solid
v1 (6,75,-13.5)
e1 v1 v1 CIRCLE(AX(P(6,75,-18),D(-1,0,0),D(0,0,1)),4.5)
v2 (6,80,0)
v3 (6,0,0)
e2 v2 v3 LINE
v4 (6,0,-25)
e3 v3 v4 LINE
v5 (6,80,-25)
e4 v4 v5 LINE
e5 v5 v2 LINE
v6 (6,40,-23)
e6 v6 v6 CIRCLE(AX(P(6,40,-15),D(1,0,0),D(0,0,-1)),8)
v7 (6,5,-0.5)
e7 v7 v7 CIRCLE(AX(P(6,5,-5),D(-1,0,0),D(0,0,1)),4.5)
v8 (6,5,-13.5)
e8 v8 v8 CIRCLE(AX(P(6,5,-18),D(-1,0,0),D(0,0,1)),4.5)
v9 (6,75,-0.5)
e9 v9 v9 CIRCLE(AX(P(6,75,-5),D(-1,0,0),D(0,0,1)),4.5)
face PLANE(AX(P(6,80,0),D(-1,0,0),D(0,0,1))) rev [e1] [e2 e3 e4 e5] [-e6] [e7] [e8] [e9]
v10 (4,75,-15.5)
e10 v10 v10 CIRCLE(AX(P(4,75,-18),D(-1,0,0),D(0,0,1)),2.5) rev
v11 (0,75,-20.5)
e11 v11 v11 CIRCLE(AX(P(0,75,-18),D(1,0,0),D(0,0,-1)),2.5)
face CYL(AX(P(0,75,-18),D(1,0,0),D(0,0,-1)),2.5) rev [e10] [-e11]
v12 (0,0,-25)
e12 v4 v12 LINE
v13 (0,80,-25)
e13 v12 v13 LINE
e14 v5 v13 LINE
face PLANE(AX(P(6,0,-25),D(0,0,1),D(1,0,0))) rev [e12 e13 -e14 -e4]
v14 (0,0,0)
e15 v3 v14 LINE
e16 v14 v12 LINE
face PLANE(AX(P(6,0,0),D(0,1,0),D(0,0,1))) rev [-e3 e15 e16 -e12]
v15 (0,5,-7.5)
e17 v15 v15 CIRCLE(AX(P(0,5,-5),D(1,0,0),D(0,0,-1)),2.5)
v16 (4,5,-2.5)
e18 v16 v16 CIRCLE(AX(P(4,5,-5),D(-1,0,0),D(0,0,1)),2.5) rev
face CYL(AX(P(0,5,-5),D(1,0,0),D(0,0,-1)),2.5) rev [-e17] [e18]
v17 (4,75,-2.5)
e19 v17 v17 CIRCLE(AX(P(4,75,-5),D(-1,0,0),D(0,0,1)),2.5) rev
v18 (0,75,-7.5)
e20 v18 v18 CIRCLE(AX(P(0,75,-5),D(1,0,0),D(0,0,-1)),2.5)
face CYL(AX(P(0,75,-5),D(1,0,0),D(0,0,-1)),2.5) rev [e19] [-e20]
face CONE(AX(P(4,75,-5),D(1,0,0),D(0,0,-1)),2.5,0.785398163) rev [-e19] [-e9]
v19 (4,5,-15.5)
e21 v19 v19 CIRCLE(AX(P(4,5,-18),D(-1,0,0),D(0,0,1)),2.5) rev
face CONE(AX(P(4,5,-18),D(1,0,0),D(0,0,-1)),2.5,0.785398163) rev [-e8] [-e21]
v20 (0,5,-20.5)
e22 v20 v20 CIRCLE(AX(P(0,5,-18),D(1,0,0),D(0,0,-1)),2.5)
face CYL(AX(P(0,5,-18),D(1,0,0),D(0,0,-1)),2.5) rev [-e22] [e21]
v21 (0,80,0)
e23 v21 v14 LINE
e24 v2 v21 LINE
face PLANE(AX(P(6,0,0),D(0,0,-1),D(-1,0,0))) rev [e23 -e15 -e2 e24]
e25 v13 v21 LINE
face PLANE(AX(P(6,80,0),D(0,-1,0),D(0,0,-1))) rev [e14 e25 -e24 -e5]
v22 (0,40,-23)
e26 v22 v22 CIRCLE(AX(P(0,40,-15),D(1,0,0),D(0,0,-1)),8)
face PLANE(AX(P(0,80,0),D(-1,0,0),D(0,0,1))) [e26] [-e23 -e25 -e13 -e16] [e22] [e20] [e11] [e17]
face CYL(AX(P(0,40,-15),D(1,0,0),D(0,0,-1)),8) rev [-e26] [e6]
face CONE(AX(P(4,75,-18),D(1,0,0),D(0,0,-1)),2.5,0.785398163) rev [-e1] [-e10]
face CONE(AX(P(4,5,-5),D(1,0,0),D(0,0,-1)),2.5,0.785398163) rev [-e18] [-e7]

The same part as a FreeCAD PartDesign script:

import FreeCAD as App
import Part
import Sketcher

V = App.Vector


def edges_at(feature, points):
    """Names of the edges that pass closest to the given points."""
    edges = feature.Shape.Edges
    near = lambda p: min(range(len(edges)), key=lambda i: edges[i].distToShape(Part.Vertex(*p))[0])
    return sorted({f"Edge{near(p) + 1}" for p in points})

doc = App.newDocument("Part")
body = doc.addObject("PartDesign::Body", "Body")

# Sketch on YZ plane
sketch1 = body.newObject("Sketcher::SketchObject", "Sketch")
sketch1.AttachmentSupport = (doc.getObject("YZ_Plane"), [""])
sketch1.MapMode = "FlatFace"
sketch1.addGeometry([
    Part.LineSegment(V(80, 0, 0), V(0, 0, 0)),
    Part.LineSegment(V(0, 0, 0), V(0, -25, 0)),
    Part.LineSegment(V(0, -25, 0), V(80, -25, 0)),
    Part.LineSegment(V(80, -25, 0), V(80, 0, 0)),
], False)
sketch1.addConstraint([
    Sketcher.Constraint("Coincident", 0, 2, 1, 1),
    Sketcher.Constraint("Coincident", 1, 2, 2, 1),
    Sketcher.Constraint("Coincident", 2, 2, 3, 1),
    Sketcher.Constraint("Coincident", 3, 2, 0, 1),
    Sketcher.Constraint("Horizontal", 0),
    Sketcher.Constraint("Vertical", 1),
    Sketcher.Constraint("Horizontal", 2),
    Sketcher.Constraint("Vertical", 3),
    Sketcher.Constraint("Coincident", 0, 2, -1, 1),
    Sketcher.Constraint("DistanceX", 0, 2, 0, 1, 80.0),
    Sketcher.Constraint("DistanceY", 1, 2, 1, 1, 25.0),
])
pad1 = body.newObject("PartDesign::Pad", "Pad")
pad1.Profile = sketch1
pad1.Length = 6

# Sketch on YZ plane
sketch2 = body.newObject("Sketcher::SketchObject", "Sketch001")
sketch2.AttachmentSupport = (doc.getObject("YZ_Plane"), [""])
sketch2.MapMode = "FlatFace"
sketch2.AttachmentOffset = App.Placement(V(0, 0, 6), App.Rotation())
sketch2.addGeometry([
    Part.Circle(V(40, -15, 0), V(0, 0, 1), 8),  # 0
    Part.Circle(V(5, -5, 0), V(0, 0, 1), 2.5),  # 1
    Part.Circle(V(5, -18, 0), V(0, 0, 1), 2.5),  # 2
    Part.Circle(V(75, -5, 0), V(0, 0, 1), 2.5),  # 3
    Part.Circle(V(75, -18, 0), V(0, 0, 1), 2.5),  # 4
], False)
sketch2.addConstraint([
    Sketcher.Constraint("Equal", 1, 2),
    Sketcher.Constraint("Equal", 2, 3),
    Sketcher.Constraint("Equal", 3, 4),
    Sketcher.Constraint("Horizontal", 1, 3, 3, 3),
    Sketcher.Constraint("Horizontal", 2, 3, 4, 3),
    Sketcher.Constraint("Vertical", 1, 3, 2, 3),
    Sketcher.Constraint("Vertical", 3, 3, 4, 3),
    Sketcher.Constraint("Diameter", 0, 16.0),
    Sketcher.Constraint("Diameter", 1, 5.0),
    Sketcher.Constraint("DistanceX", -1, 1, 0, 3, 40.0),
    Sketcher.Constraint("DistanceY", 0, 3, -1, 1, 15.0),
    Sketcher.Constraint("DistanceX", -1, 1, 1, 3, 5.0),
    Sketcher.Constraint("DistanceY", 1, 3, -1, 1, 5.0),
    Sketcher.Constraint("DistanceY", 2, 3, -1, 1, 18.0),
    Sketcher.Constraint("DistanceX", -1, 1, 3, 3, 75.0),
])
pocket1 = body.newObject("PartDesign::Pocket", "Pocket")
pocket1.Profile = sketch2
pocket1.Type = "ThroughAll"
doc.recompute()

chamfer = body.newObject("PartDesign::Chamfer", "Chamfer")
chamfer.Base = (pocket1, edges_at(pocket1, [
    (6, 5, -2.5),
    (6, 5, -15.5),
    (6, 75, -2.5),
    (6, 75, -15.5),
]))
chamfer.Size = 2

doc.recompute()
